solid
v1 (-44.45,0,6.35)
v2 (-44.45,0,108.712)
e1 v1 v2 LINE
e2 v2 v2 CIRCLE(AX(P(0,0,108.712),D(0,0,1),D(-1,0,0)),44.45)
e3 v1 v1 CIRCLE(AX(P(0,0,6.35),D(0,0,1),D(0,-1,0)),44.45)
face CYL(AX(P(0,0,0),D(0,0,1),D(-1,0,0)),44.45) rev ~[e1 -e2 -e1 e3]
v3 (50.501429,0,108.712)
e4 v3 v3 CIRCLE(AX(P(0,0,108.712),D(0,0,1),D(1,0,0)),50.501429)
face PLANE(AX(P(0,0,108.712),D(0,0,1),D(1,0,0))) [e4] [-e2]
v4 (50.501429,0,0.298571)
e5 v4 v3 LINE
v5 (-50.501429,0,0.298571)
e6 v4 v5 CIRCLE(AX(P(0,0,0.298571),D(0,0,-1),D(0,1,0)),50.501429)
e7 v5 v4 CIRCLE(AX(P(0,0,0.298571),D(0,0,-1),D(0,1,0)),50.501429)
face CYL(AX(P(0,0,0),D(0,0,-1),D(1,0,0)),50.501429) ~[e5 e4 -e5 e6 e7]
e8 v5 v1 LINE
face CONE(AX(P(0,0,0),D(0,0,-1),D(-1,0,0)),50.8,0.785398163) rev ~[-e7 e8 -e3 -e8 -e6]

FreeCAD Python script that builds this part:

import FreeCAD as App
import Part
import Sketcher

V = App.Vector
Q = App.Units.Quantity

doc = App.newDocument("Part")
body = doc.addObject("PartDesign::Body", "Body")

# Sketch on XY plane
sketch1 = body.newObject("Sketcher::SketchObject", "Sketch")
sketch1.AttachmentSupport = (doc.getObject("XY_Plane"), [""])
sketch1.MapMode = "FlatFace"
sketch1.addGeometry(Part.Circle(V(0, 0, 0), V(0, 0, 1), 51), False)
sketch1.addConstraint([
    Sketcher.Constraint("Coincident", 0, 3, -1, 1),
    Sketcher.Constraint("Diameter", 0, Q("101.002858 mm")),
])
pad1 = body.newObject("PartDesign::Pad", "Pad")
pad1.Profile = sketch1
pad1.Length = Q("4.28 in")

# Sketch on XY plane
sketch2 = body.newObject("Sketcher::SketchObject", "Sketch001")
sketch2.AttachmentSupport = (doc.getObject("XY_Plane"), [""])
sketch2.MapMode = "FlatFace"
sketch2.addGeometry(Part.Circle(V(0, 0, 0), V(0, 0, 1), 44), False)
sketch2.addConstraint([
    Sketcher.Constraint("Coincident", 0, 3, -1, 1),
    Sketcher.Constraint("Diameter", 0, Q("3.5 in")),
])
doc.recompute()
hole = body.newObject("PartDesign::Hole", "Hole")
hole.Profile = sketch2
hole.ThreadType = "None"
hole.Diameter = Q("3.5 in")
hole.DepthType = "ThroughAll"
hole.HoleCutType = "Countersink"
hole.HoleCutDiameter = Q("4 in")
hole.HoleCutCountersinkAngle = 90
hole.Reversed = True

doc.recompute()
